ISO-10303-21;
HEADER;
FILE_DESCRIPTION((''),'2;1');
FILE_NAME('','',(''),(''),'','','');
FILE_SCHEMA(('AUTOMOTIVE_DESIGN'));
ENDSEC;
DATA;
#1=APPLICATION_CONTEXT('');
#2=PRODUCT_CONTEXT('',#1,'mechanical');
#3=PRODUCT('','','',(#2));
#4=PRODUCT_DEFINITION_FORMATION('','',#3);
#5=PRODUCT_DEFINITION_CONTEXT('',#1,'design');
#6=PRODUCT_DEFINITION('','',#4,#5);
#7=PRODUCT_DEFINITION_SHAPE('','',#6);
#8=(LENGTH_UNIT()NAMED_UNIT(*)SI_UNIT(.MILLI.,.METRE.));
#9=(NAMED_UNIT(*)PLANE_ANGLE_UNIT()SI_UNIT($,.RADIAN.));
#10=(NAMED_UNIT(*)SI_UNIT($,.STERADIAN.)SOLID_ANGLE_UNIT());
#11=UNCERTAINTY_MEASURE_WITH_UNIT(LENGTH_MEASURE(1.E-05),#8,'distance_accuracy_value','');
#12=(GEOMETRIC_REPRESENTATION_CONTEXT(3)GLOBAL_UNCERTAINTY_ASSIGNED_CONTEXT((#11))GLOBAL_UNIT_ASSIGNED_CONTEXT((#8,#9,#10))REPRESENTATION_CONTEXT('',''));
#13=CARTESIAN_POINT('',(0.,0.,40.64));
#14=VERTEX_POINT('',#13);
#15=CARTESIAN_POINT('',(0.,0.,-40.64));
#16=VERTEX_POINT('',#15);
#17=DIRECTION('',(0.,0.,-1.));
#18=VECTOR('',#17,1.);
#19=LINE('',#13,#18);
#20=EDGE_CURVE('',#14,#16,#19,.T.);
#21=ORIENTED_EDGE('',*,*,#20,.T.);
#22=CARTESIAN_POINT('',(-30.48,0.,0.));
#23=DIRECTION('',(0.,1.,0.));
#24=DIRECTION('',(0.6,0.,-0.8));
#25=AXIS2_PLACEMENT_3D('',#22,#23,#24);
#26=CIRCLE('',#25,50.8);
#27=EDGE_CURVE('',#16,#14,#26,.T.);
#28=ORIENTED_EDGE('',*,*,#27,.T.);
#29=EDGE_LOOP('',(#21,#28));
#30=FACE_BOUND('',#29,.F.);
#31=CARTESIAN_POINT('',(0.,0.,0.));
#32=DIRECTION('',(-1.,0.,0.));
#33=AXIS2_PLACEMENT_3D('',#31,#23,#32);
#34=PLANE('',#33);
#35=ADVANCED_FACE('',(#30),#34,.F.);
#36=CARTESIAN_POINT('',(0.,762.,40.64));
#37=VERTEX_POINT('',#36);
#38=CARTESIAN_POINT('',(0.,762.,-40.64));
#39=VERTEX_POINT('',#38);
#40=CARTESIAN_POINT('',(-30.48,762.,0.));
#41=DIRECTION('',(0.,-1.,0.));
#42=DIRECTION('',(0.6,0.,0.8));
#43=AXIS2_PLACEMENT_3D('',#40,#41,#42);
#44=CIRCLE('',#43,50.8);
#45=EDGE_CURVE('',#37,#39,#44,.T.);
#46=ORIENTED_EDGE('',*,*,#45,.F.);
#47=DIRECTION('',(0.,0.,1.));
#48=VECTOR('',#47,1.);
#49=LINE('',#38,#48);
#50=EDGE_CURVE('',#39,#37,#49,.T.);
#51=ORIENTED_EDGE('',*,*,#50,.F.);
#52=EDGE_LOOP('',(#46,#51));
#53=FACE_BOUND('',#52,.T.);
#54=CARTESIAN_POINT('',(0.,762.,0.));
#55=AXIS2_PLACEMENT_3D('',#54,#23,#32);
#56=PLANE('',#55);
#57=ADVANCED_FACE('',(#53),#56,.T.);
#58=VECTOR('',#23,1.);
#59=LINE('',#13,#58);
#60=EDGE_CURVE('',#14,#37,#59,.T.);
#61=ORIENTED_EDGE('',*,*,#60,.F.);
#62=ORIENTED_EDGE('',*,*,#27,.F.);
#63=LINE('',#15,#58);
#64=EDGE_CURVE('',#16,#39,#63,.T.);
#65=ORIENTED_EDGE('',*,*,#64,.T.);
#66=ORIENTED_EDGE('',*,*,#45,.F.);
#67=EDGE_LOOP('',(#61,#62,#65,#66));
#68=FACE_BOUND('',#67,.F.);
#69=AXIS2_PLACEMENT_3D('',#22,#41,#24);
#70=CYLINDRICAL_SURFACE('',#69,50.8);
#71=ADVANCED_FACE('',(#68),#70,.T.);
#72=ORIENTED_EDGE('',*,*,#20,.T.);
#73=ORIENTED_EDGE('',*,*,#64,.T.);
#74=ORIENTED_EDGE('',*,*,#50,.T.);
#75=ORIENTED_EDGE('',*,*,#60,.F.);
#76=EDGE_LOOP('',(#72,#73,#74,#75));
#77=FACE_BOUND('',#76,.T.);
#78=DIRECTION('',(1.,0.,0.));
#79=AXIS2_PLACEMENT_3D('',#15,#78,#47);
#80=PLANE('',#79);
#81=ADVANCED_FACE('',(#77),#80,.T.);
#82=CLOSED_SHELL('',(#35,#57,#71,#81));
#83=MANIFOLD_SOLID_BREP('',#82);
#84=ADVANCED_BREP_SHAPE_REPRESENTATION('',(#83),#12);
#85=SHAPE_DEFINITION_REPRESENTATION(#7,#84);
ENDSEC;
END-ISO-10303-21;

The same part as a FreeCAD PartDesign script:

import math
import FreeCAD as App
import Part
import Sketcher
from FreeCAD import Vector
Q = App.Units.Quantity

doc = App.newDocument("Part")
params = doc.addObject("Spreadsheet::Sheet", "Params")
for row, (alias, value) in enumerate([
    ("sketch1_radius", "2 in"),
    ("pad1_length", "30 in"),
], start=1):
    params.set(f"A{row}", alias)
    params.set(f"B{row}", "=" + value)
    params.setAlias(f"B{row}", alias)

body = doc.addObject("PartDesign::Body", "Body")

sketch1 = body.newObject("Sketcher::SketchObject", "Sketch")
sketch1.AttachmentSupport = (doc.getObject("XZ_Plane"), [""])
sketch1.MapMode = "FlatFace"
sketch1.addGeometry(Part.ArcOfCircle(Part.Circle(Vector(-30, 0, 0), Vector(0, 0, 1), 51), math.radians(53), math.radians(307)), False)
sketch1.addGeometry(Part.LineSegment(Vector(0, 41, 0), Vector(0, -41, 0)), False)
sketch1.addConstraint(Sketcher.Constraint("Coincident", 0, 1, 1, 1))
sketch1.addConstraint(Sketcher.Constraint("Coincident", 1, 2, 0, 2))
sketch1.addConstraint(Sketcher.Constraint("Vertical", 1))
sketch1.addConstraint(Sketcher.Constraint("Symmetric", 0, 1, 1, 2, -1, 1))
sketch1.addConstraint(Sketcher.Constraint("Radius", 0, Q("2 in")))
sketch1.addConstraint(Sketcher.Constraint("DistanceX", 0, 3, -1, 1, Q("1.2 in")))
sketch1.setExpression("Constraints[4]", "Params.sketch1_radius")
pad1 = body.newObject("PartDesign::Pad", "Pad")
pad1.Profile = sketch1
pad1.setExpression("Length", "Params.pad1_length")
pad1.Reversed = True

doc.recompute()
